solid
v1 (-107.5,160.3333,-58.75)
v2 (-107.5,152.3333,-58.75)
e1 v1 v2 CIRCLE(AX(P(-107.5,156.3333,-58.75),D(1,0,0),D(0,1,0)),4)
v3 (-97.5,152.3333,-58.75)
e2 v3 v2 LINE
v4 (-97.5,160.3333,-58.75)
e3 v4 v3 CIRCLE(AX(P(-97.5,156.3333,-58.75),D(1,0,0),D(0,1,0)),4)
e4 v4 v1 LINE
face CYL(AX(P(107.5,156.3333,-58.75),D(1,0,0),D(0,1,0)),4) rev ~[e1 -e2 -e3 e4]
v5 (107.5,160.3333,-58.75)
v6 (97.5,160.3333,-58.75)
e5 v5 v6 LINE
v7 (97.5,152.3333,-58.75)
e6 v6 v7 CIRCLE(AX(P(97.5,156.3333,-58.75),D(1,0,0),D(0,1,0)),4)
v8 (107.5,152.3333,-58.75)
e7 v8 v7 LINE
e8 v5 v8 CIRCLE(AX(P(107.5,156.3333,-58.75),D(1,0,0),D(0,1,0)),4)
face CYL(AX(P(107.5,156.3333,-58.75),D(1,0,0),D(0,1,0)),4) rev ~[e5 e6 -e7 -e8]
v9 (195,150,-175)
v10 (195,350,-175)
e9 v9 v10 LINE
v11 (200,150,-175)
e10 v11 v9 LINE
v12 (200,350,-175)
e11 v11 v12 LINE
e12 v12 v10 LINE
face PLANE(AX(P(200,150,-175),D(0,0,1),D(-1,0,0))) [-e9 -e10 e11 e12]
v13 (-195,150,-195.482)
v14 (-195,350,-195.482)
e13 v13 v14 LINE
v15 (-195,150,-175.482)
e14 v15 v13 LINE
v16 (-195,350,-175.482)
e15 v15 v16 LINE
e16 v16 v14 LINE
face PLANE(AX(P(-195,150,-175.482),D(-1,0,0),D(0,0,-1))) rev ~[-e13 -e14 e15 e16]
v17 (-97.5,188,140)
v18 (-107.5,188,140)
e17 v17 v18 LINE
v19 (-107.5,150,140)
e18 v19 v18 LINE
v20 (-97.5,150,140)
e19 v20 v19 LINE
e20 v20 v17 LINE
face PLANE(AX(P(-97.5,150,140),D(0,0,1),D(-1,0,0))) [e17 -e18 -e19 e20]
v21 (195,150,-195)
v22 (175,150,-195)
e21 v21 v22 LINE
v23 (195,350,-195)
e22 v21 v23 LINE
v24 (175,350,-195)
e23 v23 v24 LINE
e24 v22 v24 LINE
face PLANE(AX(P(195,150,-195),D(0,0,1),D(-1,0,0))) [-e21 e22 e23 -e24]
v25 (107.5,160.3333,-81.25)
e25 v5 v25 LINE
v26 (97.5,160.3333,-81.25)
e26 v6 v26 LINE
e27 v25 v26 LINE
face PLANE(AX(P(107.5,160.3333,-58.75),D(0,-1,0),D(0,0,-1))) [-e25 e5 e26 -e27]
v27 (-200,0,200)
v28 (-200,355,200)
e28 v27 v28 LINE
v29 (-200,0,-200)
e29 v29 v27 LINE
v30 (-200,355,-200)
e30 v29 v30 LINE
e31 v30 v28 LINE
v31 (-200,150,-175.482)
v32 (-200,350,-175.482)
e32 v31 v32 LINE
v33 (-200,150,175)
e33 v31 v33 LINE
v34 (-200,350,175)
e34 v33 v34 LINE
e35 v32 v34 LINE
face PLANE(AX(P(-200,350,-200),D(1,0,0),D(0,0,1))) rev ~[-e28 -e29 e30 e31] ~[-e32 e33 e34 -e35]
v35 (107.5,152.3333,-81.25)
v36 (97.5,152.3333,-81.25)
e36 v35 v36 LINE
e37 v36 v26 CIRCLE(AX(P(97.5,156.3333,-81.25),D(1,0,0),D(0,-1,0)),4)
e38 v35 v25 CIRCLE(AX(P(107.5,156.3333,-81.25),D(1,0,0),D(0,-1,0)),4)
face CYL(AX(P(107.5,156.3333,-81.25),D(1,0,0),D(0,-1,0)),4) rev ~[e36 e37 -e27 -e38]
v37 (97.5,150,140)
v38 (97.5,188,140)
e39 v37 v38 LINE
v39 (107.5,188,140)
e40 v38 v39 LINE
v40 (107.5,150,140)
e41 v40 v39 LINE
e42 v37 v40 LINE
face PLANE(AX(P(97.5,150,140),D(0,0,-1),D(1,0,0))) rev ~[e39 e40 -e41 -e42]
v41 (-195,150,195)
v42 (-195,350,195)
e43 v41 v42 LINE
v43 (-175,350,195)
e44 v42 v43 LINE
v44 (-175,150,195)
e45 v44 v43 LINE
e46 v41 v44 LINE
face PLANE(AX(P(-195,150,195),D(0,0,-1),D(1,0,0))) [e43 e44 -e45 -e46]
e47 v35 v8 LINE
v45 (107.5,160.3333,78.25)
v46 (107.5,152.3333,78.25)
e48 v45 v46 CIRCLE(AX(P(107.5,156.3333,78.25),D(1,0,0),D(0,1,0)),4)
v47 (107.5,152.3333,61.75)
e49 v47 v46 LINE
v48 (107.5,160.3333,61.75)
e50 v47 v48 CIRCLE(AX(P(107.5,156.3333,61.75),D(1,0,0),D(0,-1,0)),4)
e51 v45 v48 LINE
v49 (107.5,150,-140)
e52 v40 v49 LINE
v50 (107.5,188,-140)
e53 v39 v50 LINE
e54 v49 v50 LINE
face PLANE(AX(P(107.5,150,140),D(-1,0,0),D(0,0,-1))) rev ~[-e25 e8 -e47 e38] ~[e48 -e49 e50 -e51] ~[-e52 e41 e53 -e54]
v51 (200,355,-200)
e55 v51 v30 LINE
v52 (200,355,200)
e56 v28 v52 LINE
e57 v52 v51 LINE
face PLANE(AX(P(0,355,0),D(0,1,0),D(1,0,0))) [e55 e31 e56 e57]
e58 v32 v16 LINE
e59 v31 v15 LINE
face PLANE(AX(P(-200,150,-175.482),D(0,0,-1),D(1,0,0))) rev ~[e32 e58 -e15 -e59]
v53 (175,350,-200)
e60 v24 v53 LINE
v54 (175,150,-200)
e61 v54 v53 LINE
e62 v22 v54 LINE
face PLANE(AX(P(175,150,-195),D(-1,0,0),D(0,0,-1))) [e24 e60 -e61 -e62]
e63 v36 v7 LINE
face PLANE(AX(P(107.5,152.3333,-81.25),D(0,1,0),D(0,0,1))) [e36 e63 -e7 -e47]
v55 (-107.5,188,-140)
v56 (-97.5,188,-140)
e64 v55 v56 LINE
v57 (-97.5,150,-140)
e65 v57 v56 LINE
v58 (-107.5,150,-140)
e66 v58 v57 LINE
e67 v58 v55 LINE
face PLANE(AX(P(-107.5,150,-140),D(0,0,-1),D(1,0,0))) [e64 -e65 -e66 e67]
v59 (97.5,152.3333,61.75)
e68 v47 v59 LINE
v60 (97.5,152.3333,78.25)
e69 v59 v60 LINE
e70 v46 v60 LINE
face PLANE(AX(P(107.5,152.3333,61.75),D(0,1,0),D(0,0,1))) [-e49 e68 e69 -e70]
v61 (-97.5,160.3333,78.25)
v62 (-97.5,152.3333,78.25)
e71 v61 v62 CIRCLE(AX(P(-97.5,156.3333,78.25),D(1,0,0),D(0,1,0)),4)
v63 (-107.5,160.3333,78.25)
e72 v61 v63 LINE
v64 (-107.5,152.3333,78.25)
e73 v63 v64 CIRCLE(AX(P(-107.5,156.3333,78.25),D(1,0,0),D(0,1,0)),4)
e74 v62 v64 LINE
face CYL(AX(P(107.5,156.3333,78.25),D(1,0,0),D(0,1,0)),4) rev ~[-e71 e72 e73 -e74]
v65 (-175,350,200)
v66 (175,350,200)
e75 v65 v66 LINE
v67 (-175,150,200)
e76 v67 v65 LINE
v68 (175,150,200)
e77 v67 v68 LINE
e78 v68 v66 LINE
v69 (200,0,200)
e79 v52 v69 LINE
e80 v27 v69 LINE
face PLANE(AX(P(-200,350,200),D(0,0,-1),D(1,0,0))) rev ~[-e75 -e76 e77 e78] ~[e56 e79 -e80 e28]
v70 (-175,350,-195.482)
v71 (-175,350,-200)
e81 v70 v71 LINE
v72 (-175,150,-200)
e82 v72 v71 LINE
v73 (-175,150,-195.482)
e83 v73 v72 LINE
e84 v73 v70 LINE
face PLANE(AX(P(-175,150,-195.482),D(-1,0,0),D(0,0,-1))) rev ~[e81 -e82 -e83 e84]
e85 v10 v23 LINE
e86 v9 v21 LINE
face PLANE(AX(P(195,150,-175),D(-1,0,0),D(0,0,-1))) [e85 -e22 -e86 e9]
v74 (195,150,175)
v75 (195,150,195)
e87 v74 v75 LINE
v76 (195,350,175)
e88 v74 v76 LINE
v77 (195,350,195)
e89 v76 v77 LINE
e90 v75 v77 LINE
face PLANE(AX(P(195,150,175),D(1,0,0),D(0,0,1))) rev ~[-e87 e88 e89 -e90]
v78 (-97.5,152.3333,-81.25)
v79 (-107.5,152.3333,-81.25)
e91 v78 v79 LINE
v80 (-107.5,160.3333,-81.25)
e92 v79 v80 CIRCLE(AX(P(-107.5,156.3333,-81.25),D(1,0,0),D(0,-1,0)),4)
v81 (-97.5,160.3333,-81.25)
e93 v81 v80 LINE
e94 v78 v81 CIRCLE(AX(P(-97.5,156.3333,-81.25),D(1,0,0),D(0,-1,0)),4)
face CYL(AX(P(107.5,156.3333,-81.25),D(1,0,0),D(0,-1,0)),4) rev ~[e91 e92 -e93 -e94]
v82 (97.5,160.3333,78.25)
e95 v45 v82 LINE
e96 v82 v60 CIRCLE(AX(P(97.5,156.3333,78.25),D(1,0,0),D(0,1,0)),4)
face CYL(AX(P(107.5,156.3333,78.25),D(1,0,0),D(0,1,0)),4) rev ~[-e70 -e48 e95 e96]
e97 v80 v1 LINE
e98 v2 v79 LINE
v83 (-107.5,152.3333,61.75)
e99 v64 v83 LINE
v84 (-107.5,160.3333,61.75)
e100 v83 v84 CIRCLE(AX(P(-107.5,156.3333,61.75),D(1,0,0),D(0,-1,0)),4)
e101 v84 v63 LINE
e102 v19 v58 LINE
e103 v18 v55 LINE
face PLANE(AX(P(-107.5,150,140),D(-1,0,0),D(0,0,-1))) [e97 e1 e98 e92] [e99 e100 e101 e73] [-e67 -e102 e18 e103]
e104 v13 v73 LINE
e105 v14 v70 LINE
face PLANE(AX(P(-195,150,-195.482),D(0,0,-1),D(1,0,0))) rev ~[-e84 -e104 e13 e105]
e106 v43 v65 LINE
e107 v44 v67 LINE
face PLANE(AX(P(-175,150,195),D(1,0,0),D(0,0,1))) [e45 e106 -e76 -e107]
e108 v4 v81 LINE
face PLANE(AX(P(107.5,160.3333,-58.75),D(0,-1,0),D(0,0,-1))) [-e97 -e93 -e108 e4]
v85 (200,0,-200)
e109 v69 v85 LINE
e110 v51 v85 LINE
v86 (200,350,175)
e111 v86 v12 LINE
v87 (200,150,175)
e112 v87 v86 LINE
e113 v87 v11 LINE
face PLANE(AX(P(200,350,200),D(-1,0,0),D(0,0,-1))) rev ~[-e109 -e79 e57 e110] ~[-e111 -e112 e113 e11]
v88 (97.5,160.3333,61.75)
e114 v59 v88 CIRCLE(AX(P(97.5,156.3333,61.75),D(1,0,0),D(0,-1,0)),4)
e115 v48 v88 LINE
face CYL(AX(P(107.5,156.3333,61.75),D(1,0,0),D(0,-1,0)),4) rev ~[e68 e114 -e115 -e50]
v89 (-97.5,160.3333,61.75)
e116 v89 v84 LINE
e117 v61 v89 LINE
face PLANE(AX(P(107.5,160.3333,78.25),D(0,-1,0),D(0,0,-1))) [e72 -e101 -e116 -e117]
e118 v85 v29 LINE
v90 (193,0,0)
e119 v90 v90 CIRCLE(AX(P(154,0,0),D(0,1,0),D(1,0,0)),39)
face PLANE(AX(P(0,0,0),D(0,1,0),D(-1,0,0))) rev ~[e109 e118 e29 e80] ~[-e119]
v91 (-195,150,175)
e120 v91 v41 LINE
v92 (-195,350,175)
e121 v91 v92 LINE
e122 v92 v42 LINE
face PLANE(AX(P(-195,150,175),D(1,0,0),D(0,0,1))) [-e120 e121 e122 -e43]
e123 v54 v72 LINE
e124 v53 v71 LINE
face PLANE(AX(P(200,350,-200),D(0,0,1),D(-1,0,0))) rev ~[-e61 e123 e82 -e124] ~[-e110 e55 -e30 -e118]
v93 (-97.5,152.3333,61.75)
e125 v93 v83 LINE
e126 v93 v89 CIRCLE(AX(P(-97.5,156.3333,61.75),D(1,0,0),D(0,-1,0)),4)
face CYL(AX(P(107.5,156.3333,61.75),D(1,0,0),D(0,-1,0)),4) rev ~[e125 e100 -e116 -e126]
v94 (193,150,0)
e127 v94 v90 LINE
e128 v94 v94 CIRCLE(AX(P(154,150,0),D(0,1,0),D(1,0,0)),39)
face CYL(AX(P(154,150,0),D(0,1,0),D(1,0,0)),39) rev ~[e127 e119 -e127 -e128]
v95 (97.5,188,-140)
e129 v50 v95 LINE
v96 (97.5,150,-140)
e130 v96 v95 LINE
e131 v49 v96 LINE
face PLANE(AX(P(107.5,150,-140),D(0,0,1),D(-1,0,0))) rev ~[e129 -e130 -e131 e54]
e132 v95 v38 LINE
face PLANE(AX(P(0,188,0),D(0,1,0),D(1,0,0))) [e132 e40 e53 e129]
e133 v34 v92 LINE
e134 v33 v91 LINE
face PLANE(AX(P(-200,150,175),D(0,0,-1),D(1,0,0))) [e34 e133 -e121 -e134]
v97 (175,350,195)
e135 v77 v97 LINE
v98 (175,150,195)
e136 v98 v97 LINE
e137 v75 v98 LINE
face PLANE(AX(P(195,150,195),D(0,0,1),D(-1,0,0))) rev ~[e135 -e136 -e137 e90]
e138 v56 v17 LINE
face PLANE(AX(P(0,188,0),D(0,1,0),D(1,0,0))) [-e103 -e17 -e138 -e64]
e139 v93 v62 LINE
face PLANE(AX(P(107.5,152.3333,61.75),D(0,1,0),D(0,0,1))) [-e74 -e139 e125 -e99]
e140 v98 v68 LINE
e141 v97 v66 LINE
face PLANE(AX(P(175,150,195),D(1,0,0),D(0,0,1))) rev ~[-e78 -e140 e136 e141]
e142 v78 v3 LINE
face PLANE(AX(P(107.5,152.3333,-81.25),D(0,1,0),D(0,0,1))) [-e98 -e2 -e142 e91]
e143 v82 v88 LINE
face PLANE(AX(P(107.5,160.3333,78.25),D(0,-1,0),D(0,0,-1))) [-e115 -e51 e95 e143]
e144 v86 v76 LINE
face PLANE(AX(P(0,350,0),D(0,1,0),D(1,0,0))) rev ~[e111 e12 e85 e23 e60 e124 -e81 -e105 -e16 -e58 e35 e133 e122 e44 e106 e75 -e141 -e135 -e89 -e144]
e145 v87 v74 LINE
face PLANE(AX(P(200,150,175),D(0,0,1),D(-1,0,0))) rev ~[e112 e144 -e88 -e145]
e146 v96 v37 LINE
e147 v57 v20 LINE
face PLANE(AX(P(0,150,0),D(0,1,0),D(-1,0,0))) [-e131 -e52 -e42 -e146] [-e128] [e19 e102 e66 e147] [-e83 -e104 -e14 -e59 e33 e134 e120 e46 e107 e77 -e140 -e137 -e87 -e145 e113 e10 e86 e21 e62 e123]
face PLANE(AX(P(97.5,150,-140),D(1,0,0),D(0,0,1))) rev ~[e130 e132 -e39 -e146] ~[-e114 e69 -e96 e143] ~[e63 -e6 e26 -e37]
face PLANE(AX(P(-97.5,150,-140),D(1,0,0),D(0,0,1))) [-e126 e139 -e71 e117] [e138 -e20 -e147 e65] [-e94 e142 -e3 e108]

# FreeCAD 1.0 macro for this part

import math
import FreeCAD as App
import Part
import Sketcher


def add_polygon(sketch, points):
    """Adds a closed chain of lines whose ends are joined by coincident constraints."""
    first, n = sketch.GeometryCount, len(points)
    for a, b in zip(points, points[1:] + points[:1]):
        sketch.addGeometry(Part.LineSegment(App.Vector(*a, 0), App.Vector(*b, 0)), False)
    for i in range(n):
        sketch.addConstraint(Sketcher.Constraint("Coincident", first + i, 2, first + (i + 1) % n, 1))

doc = App.newDocument("Part")
body = doc.addObject("PartDesign::Body", "Body")

# Sketch on XZ plane
sketch1 = body.newObject("Sketcher::SketchObject", "Sketch")
sketch1.AttachmentSupport = (doc.getObject("XZ_Plane"), [""])
sketch1.MapMode = "FlatFace"
add_polygon(sketch1, [(-200, -200), (-200, 200), (200, 200), (200, -200)])  # lines 0-3
sketch1.addConstraint([
    Sketcher.Constraint("Vertical", 0),
    Sketcher.Constraint("Horizontal", 1),
    Sketcher.Constraint("Vertical", 2),
    Sketcher.Constraint("Horizontal", 3),
    Sketcher.Constraint("Symmetric", 0, 2, 2, 2, -1, 1),
    Sketcher.Constraint("Equal", 3, 0),
    Sketcher.Constraint("DistanceX", 1, 1, 1, 2, 400.0),
])
pad1 = body.newObject("PartDesign::Pad", "Pad")
pad1.Profile = sketch1
pad1.Length = 150
pad1.Reversed = True

# Sketch on XZ plane
sketch2 = body.newObject("Sketcher::SketchObject", "Sketch001")
sketch2.AttachmentSupport = (doc.getObject("XZ_Plane"), [""])
sketch2.MapMode = "FlatFace"
sketch2.AttachmentOffset = App.Placement(App.Vector(0, 0, -150), App.Rotation())
add_polygon(sketch2, [(-98, 140), (-98, -140), (-108, -140), (-108, 140)])  # lines 0-3
add_polygon(sketch2, [(108, -140), (98, -140), (98, 140), (108, 140)])  # lines 4-7
sketch2.addConstraint([
    Sketcher.Constraint("Vertical", 0),
    Sketcher.Constraint("Horizontal", 1),
    Sketcher.Constraint("Vertical", 2),
    Sketcher.Constraint("Horizontal", 3),
    Sketcher.Constraint("Horizontal", 4),
    Sketcher.Constraint("Vertical", 5),
    Sketcher.Constraint("Horizontal", 6),
    Sketcher.Constraint("Vertical", 7),
    Sketcher.Constraint("Symmetric", 3, 2, 4, 2, -1, 1),
    Sketcher.Constraint("Symmetric", 1, 2, 6, 2, -1, 1),
    Sketcher.Constraint("Horizontal", 1, 2, 4, 2),
    Sketcher.Constraint("DistanceX", 1, 2, 1, 1, 10.0),
    Sketcher.Constraint("DistanceY", 0, 2, 0, 1, 280.0),
    Sketcher.Constraint("DistanceX", 0, 2, -1, 1, 97.5),
])
pad2 = body.newObject("PartDesign::Pad", "Pad001")
pad2.Profile = sketch2
pad2.Length = 38
pad2.Reversed = True

# Sketch on XZ plane
sketch3 = body.newObject("Sketcher::SketchObject", "Sketch002")
sketch3.AttachmentSupport = (doc.getObject("XZ_Plane"), [""])
sketch3.MapMode = "FlatFace"
sketch3.AttachmentOffset = App.Placement(App.Vector(0, 0, -150), App.Rotation())
add_polygon(sketch3, [(-175, -200), (-200, -200), (-200, -175.5), (-195, -175.5), (-195, -195.5), (-175, -195.5)])  # lines 0-5
add_polygon(sketch3, [(200, -200), (175, -200), (175, -195), (195, -195), (195, -175), (200, -175)])  # lines 6-11
add_polygon(sketch3, [(-195, 175), (-200, 175), (-200, 200), (-175, 200), (-175, 195), (-195, 195)])  # lines 12-17
add_polygon(sketch3, [(200, 200), (200, 175), (195, 175), (195, 195), (175, 195), (175, 200)])  # lines 18-23
sketch3.addConstraint([
    Sketcher.Constraint("Horizontal", 0),
    Sketcher.Constraint("Vertical", 1),
    Sketcher.Constraint("Horizontal", 2),
    Sketcher.Constraint("Vertical", 3),
    Sketcher.Constraint("Horizontal", 4),
    Sketcher.Constraint("Vertical", 5),
    Sketcher.Constraint("Horizontal", 6),
    Sketcher.Constraint("Vertical", 7),
    Sketcher.Constraint("Horizontal", 8),
    Sketcher.Constraint("Vertical", 9),
    Sketcher.Constraint("Horizontal", 10),
    Sketcher.Constraint("Vertical", 11),
    Sketcher.Constraint("Horizontal", 12),
    Sketcher.Constraint("Vertical", 13),
    Sketcher.Constraint("Horizontal", 14),
    Sketcher.Constraint("Vertical", 15),
    Sketcher.Constraint("Horizontal", 16),
    Sketcher.Constraint("Vertical", 17),
    Sketcher.Constraint("Vertical", 18),
    Sketcher.Constraint("Horizontal", 19),
    Sketcher.Constraint("Vertical", 20),
    Sketcher.Constraint("Horizontal", 21),
    Sketcher.Constraint("Vertical", 22),
    Sketcher.Constraint("Horizontal", 23),
    Sketcher.Constraint("Symmetric", 10, 2, 12, 2, -1, 1),
    Sketcher.Constraint("Symmetric", 6, 2, 14, 2, -1, 1),
    Sketcher.Constraint("Symmetric", 8, 2, 16, 2, -1, 1),
    Sketcher.Constraint("Symmetric", 5, 2, 22, 2, -1, 1),
    Sketcher.Constraint("Symmetric", 5, 2, 6, 2, -2),
    Sketcher.Constraint("Symmetric", 12, 2, 18, 2, -2),
    Sketcher.Constraint("Symmetric", 16, 2, 20, 2, -2),
    Sketcher.Constraint("Vertical", 1, 2, 12, 2),
    Sketcher.Constraint("Vertical", 3, 2, 16, 2),
    Sketcher.Constraint("Equal", 21, 3),
    Sketcher.Constraint("Equal", 19, 7),
    Sketcher.Constraint("Equal", 3, 9),
    Sketcher.Constraint("DistanceX", 0, 2, 0, 1, 25.0),
    Sketcher.Constraint("DistanceX", 2, 1, 2, 2, 5.0),
    Sketcher.Constraint("DistanceX", 0, 2, -1, 1, 200.0),
    Sketcher.Constraint("DistanceY", 0, 2, -1, 1, 200.0),
    Sketcher.Constraint("DistanceY", 1, 1, 1, 2, 24.518),
])
pad3 = body.newObject("PartDesign::Pad", "Pad002")
pad3.Profile = sketch3
pad3.Length = 200
pad3.Reversed = True

# Sketch on XZ plane
sketch4 = body.newObject("Sketcher::SketchObject", "Sketch003")
sketch4.AttachmentSupport = (doc.getObject("XZ_Plane"), [""])
sketch4.MapMode = "FlatFace"
sketch4.AttachmentOffset = App.Placement(App.Vector(0, 0, -350), App.Rotation())
add_polygon(sketch4, [(200, -200), (-200, -200), (-200, 200), (200, 200)])  # lines 0-3
sketch4.addConstraint([
    Sketcher.Constraint("Horizontal", 0),
    Sketcher.Constraint("Vertical", 1),
    Sketcher.Constraint("Horizontal", 2),
    Sketcher.Constraint("Vertical", 3),
    Sketcher.Constraint("Symmetric", 0, 2, 2, 2, -1, 1),
    Sketcher.Constraint("Equal", 2, 1),
    Sketcher.Constraint("DistanceX", 0, 2, 0, 1, 400.0),
])
pad4 = body.newObject("PartDesign::Pad", "Pad003")
pad4.Profile = sketch4
pad4.Length = 5
pad4.Reversed = True

# Sketch on XZ plane
sketch5 = body.newObject("Sketcher::SketchObject", "Sketch004")
sketch5.AttachmentSupport = (doc.getObject("XZ_Plane"), [""])
sketch5.MapMode = "FlatFace"
sketch5.AttachmentOffset = App.Placement(App.Vector(0, 0, -150), App.Rotation())
sketch5.addGeometry(Part.Circle(App.Vector(154, 0, 0), App.Vector(0, 0, 1), 39), False)
sketch5.addConstraint([
    Sketcher.Constraint("PointOnObject", 0, 3, -1),
    Sketcher.Constraint("Diameter", 0, 78.0),
    Sketcher.Constraint("DistanceX", -1, 1, 0, 3, 154.0),
])
pocket1 = body.newObject("PartDesign::Pocket", "Pocket")
pocket1.Profile = sketch5
pocket1.Length = 200.5
pocket1.Reversed = True

# Sketch on YZ plane
sketch6 = body.newObject("Sketcher::SketchObject", "Sketch005")
sketch6.AttachmentSupport = (doc.getObject("YZ_Plane"), [""])
sketch6.MapMode = "FlatFace"
sketch6.AttachmentOffset = App.Placement(App.Vector(0, 0, 107.5), App.Rotation())
sketch6.addGeometry([
    Part.LineSegment(App.Vector(160.3, 61.8, 0), App.Vector(160.3, 78.2, 0)),  # 0
    Part.ArcOfCircle(Part.Circle(App.Vector(156.3, 78.2, 0), App.Vector(0, 0, 1), 4), math.radians(0), math.radians(180)),  # 1
    Part.LineSegment(App.Vector(152.3, 78.2, 0), App.Vector(152.3, 61.8, 0)),  # 2
    Part.ArcOfCircle(Part.Circle(App.Vector(156.3, 61.8, 0), App.Vector(0, 0, 1), 4), math.radians(180), math.radians(360)),  # 3
    Part.LineSegment(App.Vector(160.3, -81.2, 0), App.Vector(160.3, -58.8, 0)),  # 4
    Part.ArcOfCircle(Part.Circle(App.Vector(156.3, -58.8, 0), App.Vector(0, 0, 1), 4), math.radians(0), math.radians(180)),  # 5
    Part.LineSegment(App.Vector(152.3, -58.8, 0), App.Vector(152.3, -81.2, 0)),  # 6
    Part.ArcOfCircle(Part.Circle(App.Vector(156.3, -81.2, 0), App.Vector(0, 0, 1), 4), math.radians(180), math.radians(360)),  # 7
], False)
sketch6.addConstraint([
    Sketcher.Constraint("Tangent", 0, 2, 1, 1),
    Sketcher.Constraint("Tangent", 1, 2, 2, 1),
    Sketcher.Constraint("Tangent", 2, 2, 3, 1),
    Sketcher.Constraint("Tangent", 3, 2, 0, 1),
    Sketcher.Constraint("Tangent", 4, 2, 5, 1),
    Sketcher.Constraint("Tangent", 5, 2, 6, 1),
    Sketcher.Constraint("Tangent", 6, 2, 7, 1),
    Sketcher.Constraint("Tangent", 7, 2, 4, 1),
    Sketcher.Constraint("Vertical", 0),
    Sketcher.Constraint("Vertical", 2),
    Sketcher.Constraint("Vertical", 4),
    Sketcher.Constraint("Vertical", 6),
    Sketcher.Constraint("Equal", 3, 5),
    Sketcher.Constraint("Vertical", 3, 3, 5, 3),
    Sketcher.Constraint("Radius", 1, 4.0),
    Sketcher.Constraint("DistanceY", 0, 1, 0, 2, 16.5),
    Sketcher.Constraint("DistanceY", 4, 1, 4, 2, 22.5),
    Sketcher.Constraint("DistanceY", 5, 3, 1, 3, 137.0),
    Sketcher.Constraint("DistanceY", -1, 1, 1, 3, 78.25),
    Sketcher.Constraint("DistanceX", -1, 1, 1, 3, 156.3333),
])
pocket2 = body.newObject("PartDesign::Pocket", "Pocket001")
pocket2.Profile = sketch6
pocket2.Length = 251.25

doc.recompute()
